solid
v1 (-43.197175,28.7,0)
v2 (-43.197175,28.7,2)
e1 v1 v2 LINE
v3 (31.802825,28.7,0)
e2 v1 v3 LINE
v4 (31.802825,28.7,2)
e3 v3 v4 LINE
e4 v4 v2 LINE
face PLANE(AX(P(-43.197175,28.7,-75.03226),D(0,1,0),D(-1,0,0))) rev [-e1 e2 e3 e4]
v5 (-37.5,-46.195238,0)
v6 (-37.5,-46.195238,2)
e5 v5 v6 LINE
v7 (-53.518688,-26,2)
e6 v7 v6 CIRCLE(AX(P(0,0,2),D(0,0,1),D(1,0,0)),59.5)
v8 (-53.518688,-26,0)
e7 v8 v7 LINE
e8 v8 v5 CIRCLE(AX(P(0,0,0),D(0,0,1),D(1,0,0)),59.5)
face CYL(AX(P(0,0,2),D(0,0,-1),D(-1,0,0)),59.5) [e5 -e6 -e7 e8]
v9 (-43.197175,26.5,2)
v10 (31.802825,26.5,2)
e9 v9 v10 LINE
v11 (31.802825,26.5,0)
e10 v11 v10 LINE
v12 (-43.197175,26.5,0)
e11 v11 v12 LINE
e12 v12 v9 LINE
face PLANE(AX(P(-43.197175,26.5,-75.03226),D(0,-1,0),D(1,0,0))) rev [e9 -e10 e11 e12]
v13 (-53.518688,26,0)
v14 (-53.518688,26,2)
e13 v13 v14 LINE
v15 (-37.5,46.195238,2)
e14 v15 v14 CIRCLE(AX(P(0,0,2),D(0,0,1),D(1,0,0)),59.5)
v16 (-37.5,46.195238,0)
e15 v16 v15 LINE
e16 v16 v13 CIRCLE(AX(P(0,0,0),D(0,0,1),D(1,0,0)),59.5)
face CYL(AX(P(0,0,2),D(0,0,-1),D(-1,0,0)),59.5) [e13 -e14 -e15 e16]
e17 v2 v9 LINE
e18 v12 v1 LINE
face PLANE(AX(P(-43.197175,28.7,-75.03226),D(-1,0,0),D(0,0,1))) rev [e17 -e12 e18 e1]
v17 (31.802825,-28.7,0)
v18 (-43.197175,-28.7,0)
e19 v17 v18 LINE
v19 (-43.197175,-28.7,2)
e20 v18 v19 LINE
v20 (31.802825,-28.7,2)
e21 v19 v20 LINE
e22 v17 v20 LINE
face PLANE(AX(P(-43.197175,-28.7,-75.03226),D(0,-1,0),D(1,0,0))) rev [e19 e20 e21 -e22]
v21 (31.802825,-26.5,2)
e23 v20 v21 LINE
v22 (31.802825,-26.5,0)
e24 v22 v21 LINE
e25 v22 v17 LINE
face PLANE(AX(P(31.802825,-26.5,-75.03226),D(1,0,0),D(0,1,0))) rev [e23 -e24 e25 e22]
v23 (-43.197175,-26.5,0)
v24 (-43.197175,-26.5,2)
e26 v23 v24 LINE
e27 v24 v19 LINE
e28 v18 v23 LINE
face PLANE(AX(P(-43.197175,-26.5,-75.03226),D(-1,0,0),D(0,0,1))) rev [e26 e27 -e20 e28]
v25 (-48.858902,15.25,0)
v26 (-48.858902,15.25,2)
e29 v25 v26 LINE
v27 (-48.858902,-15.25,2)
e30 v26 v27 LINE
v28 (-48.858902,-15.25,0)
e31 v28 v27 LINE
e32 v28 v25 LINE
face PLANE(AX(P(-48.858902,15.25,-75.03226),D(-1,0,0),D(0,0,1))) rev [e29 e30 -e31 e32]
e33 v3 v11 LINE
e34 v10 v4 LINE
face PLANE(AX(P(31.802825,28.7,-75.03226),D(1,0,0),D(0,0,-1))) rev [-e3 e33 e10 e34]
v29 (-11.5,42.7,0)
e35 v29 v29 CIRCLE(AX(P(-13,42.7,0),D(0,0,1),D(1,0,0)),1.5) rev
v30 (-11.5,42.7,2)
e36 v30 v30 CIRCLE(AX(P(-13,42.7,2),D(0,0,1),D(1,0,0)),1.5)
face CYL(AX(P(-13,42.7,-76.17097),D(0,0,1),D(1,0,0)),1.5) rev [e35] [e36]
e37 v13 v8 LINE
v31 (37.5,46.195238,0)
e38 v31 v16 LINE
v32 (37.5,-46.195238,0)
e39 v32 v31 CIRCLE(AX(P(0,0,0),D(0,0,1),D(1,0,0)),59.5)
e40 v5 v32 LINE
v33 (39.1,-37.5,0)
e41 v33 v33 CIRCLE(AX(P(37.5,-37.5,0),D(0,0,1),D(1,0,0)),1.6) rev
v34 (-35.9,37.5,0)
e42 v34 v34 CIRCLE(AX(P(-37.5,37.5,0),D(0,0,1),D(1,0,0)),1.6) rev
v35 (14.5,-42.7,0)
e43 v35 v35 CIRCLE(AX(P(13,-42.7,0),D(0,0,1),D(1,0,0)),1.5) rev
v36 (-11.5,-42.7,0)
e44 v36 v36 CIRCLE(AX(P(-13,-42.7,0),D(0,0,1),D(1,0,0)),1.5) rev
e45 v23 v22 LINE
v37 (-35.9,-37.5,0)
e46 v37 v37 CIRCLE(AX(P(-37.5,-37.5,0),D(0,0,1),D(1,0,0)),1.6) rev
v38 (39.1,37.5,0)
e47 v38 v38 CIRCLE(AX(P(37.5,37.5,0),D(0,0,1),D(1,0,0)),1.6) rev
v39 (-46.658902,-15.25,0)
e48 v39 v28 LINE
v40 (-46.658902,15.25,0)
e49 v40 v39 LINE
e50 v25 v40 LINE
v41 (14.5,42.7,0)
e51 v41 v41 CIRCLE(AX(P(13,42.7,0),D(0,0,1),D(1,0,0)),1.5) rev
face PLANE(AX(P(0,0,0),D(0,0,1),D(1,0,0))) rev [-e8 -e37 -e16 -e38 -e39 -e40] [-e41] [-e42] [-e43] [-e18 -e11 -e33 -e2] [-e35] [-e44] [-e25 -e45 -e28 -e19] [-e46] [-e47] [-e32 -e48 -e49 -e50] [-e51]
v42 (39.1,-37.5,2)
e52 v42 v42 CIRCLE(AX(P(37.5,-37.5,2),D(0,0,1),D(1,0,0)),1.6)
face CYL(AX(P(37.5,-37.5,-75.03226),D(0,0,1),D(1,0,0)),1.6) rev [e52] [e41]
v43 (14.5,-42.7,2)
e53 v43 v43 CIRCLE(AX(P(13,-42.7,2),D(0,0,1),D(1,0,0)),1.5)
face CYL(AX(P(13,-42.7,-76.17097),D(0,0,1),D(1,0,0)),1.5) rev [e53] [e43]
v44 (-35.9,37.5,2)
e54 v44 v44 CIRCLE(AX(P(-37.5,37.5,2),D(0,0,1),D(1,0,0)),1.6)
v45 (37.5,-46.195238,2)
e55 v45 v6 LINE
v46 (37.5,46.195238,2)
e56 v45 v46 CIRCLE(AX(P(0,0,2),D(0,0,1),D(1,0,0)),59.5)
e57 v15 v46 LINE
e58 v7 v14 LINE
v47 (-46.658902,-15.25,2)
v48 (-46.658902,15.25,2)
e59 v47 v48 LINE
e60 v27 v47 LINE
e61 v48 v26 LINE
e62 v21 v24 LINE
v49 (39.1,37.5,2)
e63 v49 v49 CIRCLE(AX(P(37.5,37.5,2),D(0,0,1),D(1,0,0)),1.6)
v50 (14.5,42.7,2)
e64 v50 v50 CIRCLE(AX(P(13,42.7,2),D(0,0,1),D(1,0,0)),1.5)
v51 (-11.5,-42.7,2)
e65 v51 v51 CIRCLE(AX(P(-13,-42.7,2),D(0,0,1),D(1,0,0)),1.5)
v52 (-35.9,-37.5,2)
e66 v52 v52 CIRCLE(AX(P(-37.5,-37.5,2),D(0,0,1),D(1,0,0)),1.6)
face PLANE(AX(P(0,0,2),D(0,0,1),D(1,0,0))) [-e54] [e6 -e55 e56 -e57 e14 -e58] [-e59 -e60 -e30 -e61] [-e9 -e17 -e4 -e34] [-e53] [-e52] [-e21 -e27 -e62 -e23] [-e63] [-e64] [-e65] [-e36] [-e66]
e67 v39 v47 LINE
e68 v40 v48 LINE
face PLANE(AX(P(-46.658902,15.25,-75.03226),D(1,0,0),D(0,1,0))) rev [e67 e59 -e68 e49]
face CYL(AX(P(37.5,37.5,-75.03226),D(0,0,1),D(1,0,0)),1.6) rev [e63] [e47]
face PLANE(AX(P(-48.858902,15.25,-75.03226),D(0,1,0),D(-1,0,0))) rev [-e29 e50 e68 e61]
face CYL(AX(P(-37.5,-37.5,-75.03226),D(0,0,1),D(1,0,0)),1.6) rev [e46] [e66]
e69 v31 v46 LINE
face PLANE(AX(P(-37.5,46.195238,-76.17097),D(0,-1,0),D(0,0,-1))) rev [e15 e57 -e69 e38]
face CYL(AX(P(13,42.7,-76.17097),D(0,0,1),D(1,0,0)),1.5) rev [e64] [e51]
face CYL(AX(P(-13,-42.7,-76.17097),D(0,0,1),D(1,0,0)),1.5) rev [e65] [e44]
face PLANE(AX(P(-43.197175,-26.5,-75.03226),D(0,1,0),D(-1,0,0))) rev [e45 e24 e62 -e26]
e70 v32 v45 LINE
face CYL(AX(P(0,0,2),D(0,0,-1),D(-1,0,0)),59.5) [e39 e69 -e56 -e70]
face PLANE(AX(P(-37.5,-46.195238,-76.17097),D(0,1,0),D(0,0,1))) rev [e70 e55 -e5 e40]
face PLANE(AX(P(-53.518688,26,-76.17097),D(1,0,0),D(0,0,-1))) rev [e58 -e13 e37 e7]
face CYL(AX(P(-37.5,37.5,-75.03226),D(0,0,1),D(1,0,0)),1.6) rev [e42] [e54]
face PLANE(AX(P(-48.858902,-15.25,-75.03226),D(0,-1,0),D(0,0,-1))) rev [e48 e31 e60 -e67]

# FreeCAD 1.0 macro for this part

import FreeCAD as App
import Part
import Sketcher
from FreeCAD import Vector
Q = App.Units.Quantity

doc = App.newDocument("Part")
body = doc.addObject("PartDesign::Body", "Body")

# Sketch on XY plane
sketch1 = body.newObject("Sketcher::SketchObject", "Sketch")
sketch1.AttachmentSupport = (doc.getObject("XY_Plane"), [""])
sketch1.MapMode = "FlatFace"
sketch1.addGeometry(Part.Circle(Vector(0, 0, 0), Vector(0, 0, 1), 59.5), False)
sketch1.addConstraint([
    Sketcher.Constraint("Coincident", 0, 3, -1, 1),
    Sketcher.Constraint("Diameter", 0, Q("119 mm")),
])
pad1 = body.newObject("PartDesign::Pad", "Pad")
pad1.Profile = sketch1
pad1.Length = 2

# Sketch on XY plane
sketch2 = body.newObject("Sketcher::SketchObject", "Sketch001")
sketch2.AttachmentSupport = (doc.getObject("XY_Plane"), [""])
sketch2.MapMode = "FlatFace"
sketch2.AttachmentOffset = App.Placement(Vector(0, 0, 2), App.Rotation())
sketch2.addGeometry([
    Part.Circle(Vector(37.5, -37.5, 0), Vector(0, 0, 1), 1.6),  # 0
    Part.Circle(Vector(-37.5, -37.5, 0), Vector(0, 0, 1), 1.6),  # 1
    Part.Circle(Vector(-37.5, 37.5, 0), Vector(0, 0, 1), 1.6),  # 2
    Part.Circle(Vector(37.5, 37.5, 0), Vector(0, 0, 1), 1.6),  # 3
    Part.LineSegment(Vector(-43.197175, 28.7, 0), Vector(-43.197175, 26.5, 0)),  # 4
    Part.LineSegment(Vector(-43.197175, 26.5, 0), Vector(31.802825, 26.5, 0)),  # 5
    Part.LineSegment(Vector(31.802825, 26.5, 0), Vector(31.802825, 28.7, 0)),  # 6
    Part.LineSegment(Vector(31.802825, 28.7, 0), Vector(-43.197175, 28.7, 0)),  # 7
    Part.LineSegment(Vector(-43.197175, -26.5, 0), Vector(-43.197175, -28.7, 0)),  # 8
    Part.LineSegment(Vector(-43.197175, -28.7, 0), Vector(31.802825, -28.7, 0)),  # 9
    Part.LineSegment(Vector(31.802825, -28.7, 0), Vector(31.802825, -26.5, 0)),  # 10
    Part.LineSegment(Vector(31.802825, -26.5, 0), Vector(-43.197175, -26.5, 0)),  # 11
    Part.LineSegment(Vector(-48.858902, 15.25, 0), Vector(-48.858902, -15.25, 0)),  # 12
    Part.LineSegment(Vector(-48.858902, -15.25, 0), Vector(-46.658902, -15.25, 0)),  # 13
    Part.LineSegment(Vector(-46.658902, -15.25, 0), Vector(-46.658902, 15.25, 0)),  # 14
    Part.LineSegment(Vector(-46.658902, 15.25, 0), Vector(-48.858902, 15.25, 0)),  # 15
], False)
sketch2.addConstraint([
    Sketcher.Constraint("Coincident", 4, 2, 5, 1),
    Sketcher.Constraint("Coincident", 5, 2, 6, 1),
    Sketcher.Constraint("Coincident", 6, 2, 7, 1),
    Sketcher.Constraint("Coincident", 7, 2, 4, 1),
    Sketcher.Constraint("Coincident", 8, 2, 9, 1),
    Sketcher.Constraint("Coincident", 9, 2, 10, 1),
    Sketcher.Constraint("Coincident", 10, 2, 11, 1),
    Sketcher.Constraint("Coincident", 11, 2, 8, 1),
    Sketcher.Constraint("Coincident", 12, 2, 13, 1),
    Sketcher.Constraint("Coincident", 13, 2, 14, 1),
    Sketcher.Constraint("Coincident", 14, 2, 15, 1),
    Sketcher.Constraint("Coincident", 15, 2, 12, 1),
    Sketcher.Constraint("Vertical", 4),
    Sketcher.Constraint("Horizontal", 5),
    Sketcher.Constraint("Vertical", 6),
    Sketcher.Constraint("Horizontal", 7),
    Sketcher.Constraint("Vertical", 8),
    Sketcher.Constraint("Horizontal", 9),
    Sketcher.Constraint("Vertical", 10),
    Sketcher.Constraint("Horizontal", 11),
    Sketcher.Constraint("Vertical", 12),
    Sketcher.Constraint("Horizontal", 13),
    Sketcher.Constraint("Vertical", 14),
    Sketcher.Constraint("Horizontal", 15),
    Sketcher.Constraint("Equal", 0, 1),
    Sketcher.Constraint("Equal", 1, 2),
    Sketcher.Constraint("Equal", 2, 3),
    Sketcher.Constraint("Symmetric", 0, 3, 2, 3, -1, 1),
    Sketcher.Constraint("Symmetric", 1, 3, 3, 3, -1, 1),
    Sketcher.Constraint("Symmetric", 0, 3, 1, 3, -2),
    Sketcher.Constraint("Symmetric", 7, 2, 8, 2, -1),
    Sketcher.Constraint("Symmetric", 5, 2, 10, 2, -1),
    Sketcher.Constraint("Equal", 15, 4),
    Sketcher.Constraint("Diameter", 0, Q("3.2 mm")),
    Sketcher.Constraint("DistanceX", 5, 1, 5, 2, Q("75 mm")),
    Sketcher.Constraint("DistanceX", 13, 1, 13, 2, Q("2.2 mm")),
    Sketcher.Constraint("DistanceY", 12, 2, 12, 1, Q("30.5 mm")),
    Sketcher.Constraint("DistanceX", 1, 3, 0, 3, Q("75 mm")),
    Sketcher.Constraint("DistanceY", 1, 3, 2, 3, Q("75 mm")),
    Sketcher.Constraint("DistanceY", 4, 2, 2, 3, Q("11 mm")),
    Sketcher.Constraint("DistanceY", 12, 2, -1, 1, Q("15.25 mm")),
    Sketcher.Constraint("DistanceX", 4, 2, -1, 1, Q("43.197175 mm")),
    Sketcher.Constraint("DistanceX", 12, 2, -1, 1, Q("48.858902 mm")),
])
pocket1 = body.newObject("PartDesign::Pocket", "Pocket")
pocket1.Profile = sketch2
pocket1.Length = 2

# Sketch on XY plane
sketch3 = body.newObject("Sketcher::SketchObject", "Sketch002")
sketch3.AttachmentSupport = (doc.getObject("XY_Plane"), [""])
sketch3.MapMode = "FlatFace"
sketch3.AttachmentOffset = App.Placement(Vector(0, 0, 2), App.Rotation())
sketch3.addGeometry([
    Part.Circle(Vector(-13, -42.7, 0), Vector(0, 0, 1), 1.5),  # 0
    Part.Circle(Vector(13, -42.7, 0), Vector(0, 0, 1), 1.5),  # 1
    Part.Circle(Vector(-13, 42.7, 0), Vector(0, 0, 1), 1.5),  # 2
    Part.Circle(Vector(13, 42.7, 0), Vector(0, 0, 1), 1.5),  # 3
    Part.LineSegment(Vector(-37.5, 59.5, 0), Vector(-37.5, 46.195238, 0)),  # 4
    Part.LineSegment(Vector(-37.5, 46.195238, 0), Vector(37.5, 46.195238, 0)),  # 5
    Part.LineSegment(Vector(37.5, 46.195238, 0), Vector(37.5, 59.5, 0)),  # 6
    Part.LineSegment(Vector(37.5, 59.5, 0), Vector(-37.5, 59.5, 0)),  # 7
    Part.LineSegment(Vector(-37.5, -46.195238, 0), Vector(-37.5, -59.5, 0)),  # 8
    Part.LineSegment(Vector(-37.5, -59.5, 0), Vector(37.5, -59.5, 0)),  # 9
    Part.LineSegment(Vector(37.5, -59.5, 0), Vector(37.5, -46.195238, 0)),  # 10
    Part.LineSegment(Vector(37.5, -46.195238, 0), Vector(-37.5, -46.195238, 0)),  # 11
    Part.LineSegment(Vector(-59.5, 26, 0), Vector(-59.5, -26, 0)),  # 12
    Part.LineSegment(Vector(-59.5, -26, 0), Vector(-53.518688, -26, 0)),  # 13
    Part.LineSegment(Vector(-53.518688, -26, 0), Vector(-53.518688, 26, 0)),  # 14
    Part.LineSegment(Vector(-53.518688, 26, 0), Vector(-59.5, 26, 0)),  # 15
], False)
sketch3.addConstraint([
    Sketcher.Constraint("Coincident", 4, 2, 5, 1),
    Sketcher.Constraint("Coincident", 5, 2, 6, 1),
    Sketcher.Constraint("Coincident", 6, 2, 7, 1),
    Sketcher.Constraint("Coincident", 7, 2, 4, 1),
    Sketcher.Constraint("Coincident", 8, 2, 9, 1),
    Sketcher.Constraint("Coincident", 9, 2, 10, 1),
    Sketcher.Constraint("Coincident", 10, 2, 11, 1),
    Sketcher.Constraint("Coincident", 11, 2, 8, 1),
    Sketcher.Constraint("Coincident", 12, 2, 13, 1),
    Sketcher.Constraint("Coincident", 13, 2, 14, 1),
    Sketcher.Constraint("Coincident", 14, 2, 15, 1),
    Sketcher.Constraint("Coincident", 15, 2, 12, 1),
    Sketcher.Constraint("Vertical", 4),
    Sketcher.Constraint("Horizontal", 5),
    Sketcher.Constraint("Vertical", 6),
    Sketcher.Constraint("Horizontal", 7),
    Sketcher.Constraint("Vertical", 8),
    Sketcher.Constraint("Horizontal", 9),
    Sketcher.Constraint("Vertical", 10),
    Sketcher.Constraint("Horizontal", 11),
    Sketcher.Constraint("Vertical", 12),
    Sketcher.Constraint("Horizontal", 13),
    Sketcher.Constraint("Vertical", 14),
    Sketcher.Constraint("Horizontal", 15),
    Sketcher.Constraint("Equal", 0, 1),
    Sketcher.Constraint("Equal", 1, 2),
    Sketcher.Constraint("Equal", 2, 3),
    Sketcher.Constraint("Symmetric", 1, 3, 2, 3, -1, 1),
    Sketcher.Constraint("Symmetric", 0, 3, 3, 3, -1, 1),
    Sketcher.Constraint("Symmetric", 6, 2, 8, 2, -1, 1),
    Sketcher.Constraint("Symmetric", 4, 2, 10, 2, -1, 1),
    Sketcher.Constraint("Symmetric", 0, 3, 1, 3, -2),
    Sketcher.Constraint("Vertical", 7, 2, 8, 2),
    Sketcher.Constraint("Diameter", 0, Q("3 mm")),
    Sketcher.Constraint("DistanceX", 5, 1, 5, 2, Q("75 mm")),
    Sketcher.Constraint("DistanceY", 12, 2, 12, 1, Q("52 mm")),
    Sketcher.Constraint("DistanceX", 0, 3, -1, 1, Q("13 mm")),
    Sketcher.Constraint("DistanceY", 12, 2, -1, 1, Q("26 mm")),
    Sketcher.Constraint("DistanceX", 12, 2, 11, 2, Q("22 mm")),
    Sketcher.Constraint("DistanceY", 0, 3, -1, 1, Q("42.7 mm")),
    Sketcher.Constraint("DistanceY", -1, 1, 6, 2, Q("59.5 mm")),
    Sketcher.Constraint("DistanceX", 13, 1, 13, 2, Q("5.981312 mm")),
    Sketcher.Constraint("DistanceY", 4, 2, 4, 1, Q("13.304762 mm")),
])
pocket2 = body.newObject("PartDesign::Pocket", "Pocket001")
pocket2.Profile = sketch3
pocket2.Length = 2

doc.recompute()
